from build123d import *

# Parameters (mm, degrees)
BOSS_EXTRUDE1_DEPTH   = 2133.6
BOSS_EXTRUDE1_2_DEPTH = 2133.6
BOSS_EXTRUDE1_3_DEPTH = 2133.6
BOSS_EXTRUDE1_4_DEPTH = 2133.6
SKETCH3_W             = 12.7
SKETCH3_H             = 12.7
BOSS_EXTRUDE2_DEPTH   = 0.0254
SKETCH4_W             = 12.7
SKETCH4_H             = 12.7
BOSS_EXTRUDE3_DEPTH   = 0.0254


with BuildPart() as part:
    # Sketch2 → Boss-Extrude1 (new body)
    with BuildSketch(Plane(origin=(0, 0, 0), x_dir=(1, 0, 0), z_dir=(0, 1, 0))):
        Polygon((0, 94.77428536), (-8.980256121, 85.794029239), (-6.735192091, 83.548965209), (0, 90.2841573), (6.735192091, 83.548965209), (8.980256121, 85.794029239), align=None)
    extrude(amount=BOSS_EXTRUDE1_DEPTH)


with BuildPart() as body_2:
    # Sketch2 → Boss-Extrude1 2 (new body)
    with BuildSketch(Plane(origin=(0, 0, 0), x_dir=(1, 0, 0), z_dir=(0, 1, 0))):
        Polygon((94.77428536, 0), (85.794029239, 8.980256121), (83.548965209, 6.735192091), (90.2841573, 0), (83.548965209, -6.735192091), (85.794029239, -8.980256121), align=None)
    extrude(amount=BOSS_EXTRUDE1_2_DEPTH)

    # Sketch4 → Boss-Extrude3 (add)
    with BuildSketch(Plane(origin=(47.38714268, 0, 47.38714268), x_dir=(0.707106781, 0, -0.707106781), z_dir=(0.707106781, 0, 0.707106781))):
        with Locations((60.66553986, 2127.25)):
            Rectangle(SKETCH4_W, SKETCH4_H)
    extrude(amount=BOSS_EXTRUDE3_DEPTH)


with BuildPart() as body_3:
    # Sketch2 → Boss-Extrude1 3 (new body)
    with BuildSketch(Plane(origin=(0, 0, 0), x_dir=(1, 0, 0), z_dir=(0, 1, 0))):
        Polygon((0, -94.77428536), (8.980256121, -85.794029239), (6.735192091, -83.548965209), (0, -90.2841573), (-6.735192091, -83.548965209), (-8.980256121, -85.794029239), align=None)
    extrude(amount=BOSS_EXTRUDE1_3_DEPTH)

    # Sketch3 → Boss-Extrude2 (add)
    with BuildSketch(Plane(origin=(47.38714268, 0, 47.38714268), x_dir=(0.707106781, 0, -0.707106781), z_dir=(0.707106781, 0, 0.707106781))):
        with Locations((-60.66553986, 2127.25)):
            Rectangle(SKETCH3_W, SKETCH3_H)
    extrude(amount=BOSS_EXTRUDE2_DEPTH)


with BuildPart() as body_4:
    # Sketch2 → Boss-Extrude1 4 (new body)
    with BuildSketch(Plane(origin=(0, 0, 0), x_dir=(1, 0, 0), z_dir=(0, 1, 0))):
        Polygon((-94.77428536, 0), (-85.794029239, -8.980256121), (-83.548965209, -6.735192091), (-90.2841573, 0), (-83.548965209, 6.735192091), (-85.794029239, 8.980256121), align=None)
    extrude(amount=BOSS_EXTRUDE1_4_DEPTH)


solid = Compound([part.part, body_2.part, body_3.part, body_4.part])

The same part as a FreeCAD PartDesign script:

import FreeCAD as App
import Part
import Sketcher
Q = App.Units.Quantity

doc = App.newDocument("Part")
params = doc.addObject("Spreadsheet::Sheet", "Params")
for row, (alias, value) in enumerate([
    ("sketch1_length", "0.5 in"),
    ("sketch1_length2", "0.125 in"),
    ("pad1_length", "84 in"),
    ("sketch2_length", "0.5 in"),
    ("sketch2_length2", "0.125 in"),
    ("pad2_length", "84 in"),
    ("sketch3_width", "0.5 in"),
    ("pad3_length", "0.001 in"),
    ("sketch4_length", "0.5 in"),
    ("sketch4_length2", "0.125 in"),
    ("pad4_length", "84 in"),
    ("sketch5_width", "0.5 in"),
    ("pad5_length", "0.001 in"),
    ("sketch6_length", "0.5 in"),
    ("sketch6_length2", "0.125 in"),
    ("pad6_length", "84 in"),
], start=1):
    params.set(f"A{row}", alias)
    params.set(f"B{row}", "=" + value)
    params.setAlias(f"B{row}", alias)

body = doc.addObject("PartDesign::Body", "Body")

sketch1 = body.newObject("Sketcher::SketchObject", "Sketch")
sketch1.AttachmentSupport = (doc.getObject("XZ_Plane"), [""])
sketch1.MapMode = "FlatFace"
sketch1.addGeometry([
    Part.LineSegment(App.Vector(0, -94.8, 0), App.Vector(-9, -85.8, 0)),
    Part.LineSegment(App.Vector(-9, -85.8, 0), App.Vector(-6.7, -83.5, 0)),
    Part.LineSegment(App.Vector(-6.7, -83.5, 0), App.Vector(0, -90.3, 0)),
    Part.LineSegment(App.Vector(0, -90.3, 0), App.Vector(6.7, -83.5, 0)),
    Part.LineSegment(App.Vector(6.7, -83.5, 0), App.Vector(9, -85.8, 0)),
    Part.LineSegment(App.Vector(9, -85.8, 0), App.Vector(0, -94.8, 0)),
], False)
sketch1.addConstraint([
    Sketcher.Constraint("Coincident", 0, 2, 1, 1),
    Sketcher.Constraint("Coincident", 1, 2, 2, 1),
    Sketcher.Constraint("Coincident", 2, 2, 3, 1),
    Sketcher.Constraint("Coincident", 3, 2, 4, 1),
    Sketcher.Constraint("Coincident", 4, 2, 5, 1),
    Sketcher.Constraint("Coincident", 5, 2, 0, 1),
    Sketcher.Constraint("Symmetric", 1, 2, 3, 2, -2),
    Sketcher.Constraint("Symmetric", 0, 2, 4, 2, -2),
    Sketcher.Constraint("PointOnObject", 2, 2, -2),
    Sketcher.Constraint("PointOnObject", 5, 2, -2),
    Sketcher.Constraint("Perpendicular", 0, 1),
    Sketcher.Constraint("Perpendicular", 1, 2),
    Sketcher.Constraint("Perpendicular", 2, 3),
    Sketcher.Constraint("Distance", 0, Q("0.5 in")),
    Sketcher.Constraint("Distance", 1, Q("0.125 in")),
    Sketcher.Constraint("DistanceY", 0, 2, -1, 1, Q("85.794029 mm")),
])
sketch1.setExpression("Constraints[13]", "Params.sketch1_length")
sketch1.setExpression("Constraints[14]", "Params.sketch1_length2")
pad1 = body.newObject("PartDesign::Pad", "Pad")
pad1.Profile = sketch1
pad1.setExpression("Length", "Params.pad1_length")
pad1.Reversed = True
body2 = doc.addObject("PartDesign::Body", "Body001")

sketch2 = body2.newObject("Sketcher::SketchObject", "Sketch001")
sketch2.AttachmentSupport = (doc.getObject("XZ_Plane001"), [""])
sketch2.MapMode = "FlatFace"
sketch2.addGeometry([
    Part.LineSegment(App.Vector(94.8, 0, 0), App.Vector(85.8, -9, 0)),
    Part.LineSegment(App.Vector(85.8, -9, 0), App.Vector(83.5, -6.7, 0)),
    Part.LineSegment(App.Vector(83.5, -6.7, 0), App.Vector(90.3, 0, 0)),
    Part.LineSegment(App.Vector(90.3, 0, 0), App.Vector(83.5, 6.7, 0)),
    Part.LineSegment(App.Vector(83.5, 6.7, 0), App.Vector(85.8, 9, 0)),
    Part.LineSegment(App.Vector(85.8, 9, 0), App.Vector(94.8, 0, 0)),
], False)
sketch2.addConstraint([
    Sketcher.Constraint("Coincident", 0, 2, 1, 1),
    Sketcher.Constraint("Coincident", 1, 2, 2, 1),
    Sketcher.Constraint("Coincident", 2, 2, 3, 1),
    Sketcher.Constraint("Coincident", 3, 2, 4, 1),
    Sketcher.Constraint("Coincident", 4, 2, 5, 1),
    Sketcher.Constraint("Coincident", 5, 2, 0, 1),
    Sketcher.Constraint("Symmetric", 1, 2, 3, 2, -1),
    Sketcher.Constraint("Symmetric", 0, 2, 4, 2, -1),
    Sketcher.Constraint("PointOnObject", 2, 2, -1),
    Sketcher.Constraint("PointOnObject", 5, 2, -1),
    Sketcher.Constraint("Perpendicular", 0, 1),
    Sketcher.Constraint("Perpendicular", 1, 2),
    Sketcher.Constraint("Perpendicular", 2, 3),
    Sketcher.Constraint("Distance", 0, Q("0.5 in")),
    Sketcher.Constraint("Distance", 1, Q("0.125 in")),
    Sketcher.Constraint("DistanceX", -1, 1, 0, 2, Q("85.794029 mm")),
])
sketch2.setExpression("Constraints[13]", "Params.sketch2_length")
sketch2.setExpression("Constraints[14]", "Params.sketch2_length2")
pad2 = body2.newObject("PartDesign::Pad", "Pad001")
pad2.Profile = sketch2
pad2.setExpression("Length", "Params.pad2_length")
pad2.Reversed = True

sketch3 = body2.newObject("Sketcher::SketchObject", "Sketch002")
sketch3.Placement = App.Placement(App.Vector(47.387143, 0, 47.387143), App.Rotation(App.Vector(0.707106781, 0, -0.707106781), App.Vector(0, 0.999999999, 0), App.Vector(0.707106781, 0, 0.707106781), "ZXY"))
sketch3.addGeometry([
    Part.LineSegment(App.Vector(54, 2134, 0), App.Vector(54, 2121, 0)),
    Part.LineSegment(App.Vector(54, 2121, 0), App.Vector(67, 2121, 0)),
    Part.LineSegment(App.Vector(67, 2121, 0), App.Vector(67, 2134, 0)),
    Part.LineSegment(App.Vector(67, 2134, 0), App.Vector(54, 2134, 0)),
], False)
sketch3.addConstraint([
    Sketcher.Constraint("Coincident", 0, 2, 1, 1),
    Sketcher.Constraint("Coincident", 1, 2, 2, 1),
    Sketcher.Constraint("Coincident", 2, 2, 3, 1),
    Sketcher.Constraint("Coincident", 3, 2, 0, 1),
    Sketcher.Constraint("Vertical", 0),
    Sketcher.Constraint("Horizontal", 1),
    Sketcher.Constraint("Vertical", 2),
    Sketcher.Constraint("Horizontal", 3),
    Sketcher.Constraint("Equal", 3, 0),
    Sketcher.Constraint("DistanceX", 1, 1, 1, 2, Q("0.5 in")),
    Sketcher.Constraint("DistanceY", -1, 1, 2, 2, Q("83.9999999 in")),
    Sketcher.Constraint("DistanceX", -1, 1, 0, 2, Q("54.31554 mm")),
])
sketch3.setExpression("Constraints[9]", "Params.sketch3_width")
pad3 = body2.newObject("PartDesign::Pad", "Pad002")
pad3.Profile = sketch3
pad3.setExpression("Length", "Params.pad3_length")
body3 = doc.addObject("PartDesign::Body", "Body002")

sketch4 = body3.newObject("Sketcher::SketchObject", "Sketch003")
sketch4.AttachmentSupport = (doc.getObject("XZ_Plane002"), [""])
sketch4.MapMode = "FlatFace"
sketch4.addGeometry([
    Part.LineSegment(App.Vector(0, 94.8, 0), App.Vector(9, 85.8, 0)),
    Part.LineSegment(App.Vector(9, 85.8, 0), App.Vector(6.7, 83.5, 0)),
    Part.LineSegment(App.Vector(6.7, 83.5, 0), App.Vector(0, 90.3, 0)),
    Part.LineSegment(App.Vector(0, 90.3, 0), App.Vector(-6.7, 83.5, 0)),
    Part.LineSegment(App.Vector(-6.7, 83.5, 0), App.Vector(-9, 85.8, 0)),
    Part.LineSegment(App.Vector(-9, 85.8, 0), App.Vector(0, 94.8, 0)),
], False)
sketch4.addConstraint([
    Sketcher.Constraint("Coincident", 0, 2, 1, 1),
    Sketcher.Constraint("Coincident", 1, 2, 2, 1),
    Sketcher.Constraint("Coincident", 2, 2, 3, 1),
    Sketcher.Constraint("Coincident", 3, 2, 4, 1),
    Sketcher.Constraint("Coincident", 4, 2, 5, 1),
    Sketcher.Constraint("Coincident", 5, 2, 0, 1),
    Sketcher.Constraint("Symmetric", 1, 2, 3, 2, -2),
    Sketcher.Constraint("Symmetric", 0, 2, 4, 2, -2),
    Sketcher.Constraint("PointOnObject", 2, 2, -2),
    Sketcher.Constraint("PointOnObject", 5, 2, -2),
    Sketcher.Constraint("Perpendicular", 0, 1),
    Sketcher.Constraint("Perpendicular", 1, 2),
    Sketcher.Constraint("Perpendicular", 2, 3),
    Sketcher.Constraint("Distance", 0, Q("0.5 in")),
    Sketcher.Constraint("Distance", 1, Q("0.125 in")),
    Sketcher.Constraint("DistanceY", -1, 1, 0, 2, Q("85.794029 mm")),
])
sketch4.setExpression("Constraints[13]", "Params.sketch4_length")
sketch4.setExpression("Constraints[14]", "Params.sketch4_length2")
pad4 = body3.newObject("PartDesign::Pad", "Pad003")
pad4.Profile = sketch4
pad4.setExpression("Length", "Params.pad4_length")
pad4.Reversed = True

sketch5 = body3.newObject("Sketcher::SketchObject", "Sketch004")
sketch5.Placement = App.Placement(App.Vector(47.387143, 0, 47.387143), App.Rotation(App.Vector(0.707106781, 0, -0.707106781), App.Vector(0, 0.999999999, 0), App.Vector(0.707106781, 0, 0.707106781), "ZXY"))
sketch5.addGeometry([
    Part.LineSegment(App.Vector(-67, 2134, 0), App.Vector(-67, 2121, 0)),
    Part.LineSegment(App.Vector(-67, 2121, 0), App.Vector(-54, 2121, 0)),
    Part.LineSegment(App.Vector(-54, 2121, 0), App.Vector(-54, 2134, 0)),
    Part.LineSegment(App.Vector(-54, 2134, 0), App.Vector(-67, 2134, 0)),
], False)
sketch5.addConstraint([
    Sketcher.Constraint("Coincident", 0, 2, 1, 1),
    Sketcher.Constraint("Coincident", 1, 2, 2, 1),
    Sketcher.Constraint("Coincident", 2, 2, 3, 1),
    Sketcher.Constraint("Coincident", 3, 2, 0, 1),
    Sketcher.Constraint("Vertical", 0),
    Sketcher.Constraint("Horizontal", 1),
    Sketcher.Constraint("Vertical", 2),
    Sketcher.Constraint("Horizontal", 3),
    Sketcher.Constraint("Equal", 3, 0),
    Sketcher.Constraint("DistanceX", 1, 1, 1, 2, Q("0.5 in")),
    Sketcher.Constraint("DistanceY", -1, 1, 2, 2, Q("83.9999999 in")),
    Sketcher.Constraint("DistanceX", 0, 2, -1, 1, Q("67.01554 mm")),
])
sketch5.setExpression("Constraints[9]", "Params.sketch5_width")
pad5 = body3.newObject("PartDesign::Pad", "Pad004")
pad5.Profile = sketch5
pad5.setExpression("Length", "Params.pad5_length")
body4 = doc.addObject("PartDesign::Body", "Body003")

sketch6 = body4.newObject("Sketcher::SketchObject", "Sketch005")
sketch6.AttachmentSupport = (doc.getObject("XZ_Plane003"), [""])
sketch6.MapMode = "FlatFace"
sketch6.addGeometry([
    Part.LineSegment(App.Vector(-94.8, 0, 0), App.Vector(-85.8, 9, 0)),
    Part.LineSegment(App.Vector(-85.8, 9, 0), App.Vector(-83.5, 6.7, 0)),
    Part.LineSegment(App.Vector(-83.5, 6.7, 0), App.Vector(-90.3, 0, 0)),
    Part.LineSegment(App.Vector(-90.3, 0, 0), App.Vector(-83.5, -6.7, 0)),
    Part.LineSegment(App.Vector(-83.5, -6.7, 0), App.Vector(-85.8, -9, 0)),
    Part.LineSegment(App.Vector(-85.8, -9, 0), App.Vector(-94.8, 0, 0)),
], False)
sketch6.addConstraint([
    Sketcher.Constraint("Coincident", 0, 2, 1, 1),
    Sketcher.Constraint("Coincident", 1, 2, 2, 1),
    Sketcher.Constraint("Coincident", 2, 2, 3, 1),
    Sketcher.Constraint("Coincident", 3, 2, 4, 1),
    Sketcher.Constraint("Coincident", 4, 2, 5, 1),
    Sketcher.Constraint("Coincident", 5, 2, 0, 1),
    Sketcher.Constraint("Symmetric", 1, 2, 3, 2, -1),
    Sketcher.Constraint("Symmetric", 0, 2, 4, 2, -1),
    Sketcher.Constraint("PointOnObject", 2, 2, -1),
    Sketcher.Constraint("PointOnObject", 5, 2, -1),
    Sketcher.Constraint("Perpendicular", 0, 1),
    Sketcher.Constraint("Perpendicular", 1, 2),
    Sketcher.Constraint("Perpendicular", 2, 3),
    Sketcher.Constraint("Distance", 0, Q("0.5 in")),
    Sketcher.Constraint("Distance", 1, Q("0.125 in")),
    Sketcher.Constraint("DistanceX", 0, 2, -1, 1, Q("85.794029 mm")),
])
sketch6.setExpression("Constraints[13]", "Params.sketch6_length")
sketch6.setExpression("Constraints[14]", "Params.sketch6_length2")
pad6 = body4.newObject("PartDesign::Pad", "Pad005")
pad6.Profile = sketch6
pad6.setExpression("Length", "Params.pad6_length")
pad6.Reversed = True

doc.recompute()
